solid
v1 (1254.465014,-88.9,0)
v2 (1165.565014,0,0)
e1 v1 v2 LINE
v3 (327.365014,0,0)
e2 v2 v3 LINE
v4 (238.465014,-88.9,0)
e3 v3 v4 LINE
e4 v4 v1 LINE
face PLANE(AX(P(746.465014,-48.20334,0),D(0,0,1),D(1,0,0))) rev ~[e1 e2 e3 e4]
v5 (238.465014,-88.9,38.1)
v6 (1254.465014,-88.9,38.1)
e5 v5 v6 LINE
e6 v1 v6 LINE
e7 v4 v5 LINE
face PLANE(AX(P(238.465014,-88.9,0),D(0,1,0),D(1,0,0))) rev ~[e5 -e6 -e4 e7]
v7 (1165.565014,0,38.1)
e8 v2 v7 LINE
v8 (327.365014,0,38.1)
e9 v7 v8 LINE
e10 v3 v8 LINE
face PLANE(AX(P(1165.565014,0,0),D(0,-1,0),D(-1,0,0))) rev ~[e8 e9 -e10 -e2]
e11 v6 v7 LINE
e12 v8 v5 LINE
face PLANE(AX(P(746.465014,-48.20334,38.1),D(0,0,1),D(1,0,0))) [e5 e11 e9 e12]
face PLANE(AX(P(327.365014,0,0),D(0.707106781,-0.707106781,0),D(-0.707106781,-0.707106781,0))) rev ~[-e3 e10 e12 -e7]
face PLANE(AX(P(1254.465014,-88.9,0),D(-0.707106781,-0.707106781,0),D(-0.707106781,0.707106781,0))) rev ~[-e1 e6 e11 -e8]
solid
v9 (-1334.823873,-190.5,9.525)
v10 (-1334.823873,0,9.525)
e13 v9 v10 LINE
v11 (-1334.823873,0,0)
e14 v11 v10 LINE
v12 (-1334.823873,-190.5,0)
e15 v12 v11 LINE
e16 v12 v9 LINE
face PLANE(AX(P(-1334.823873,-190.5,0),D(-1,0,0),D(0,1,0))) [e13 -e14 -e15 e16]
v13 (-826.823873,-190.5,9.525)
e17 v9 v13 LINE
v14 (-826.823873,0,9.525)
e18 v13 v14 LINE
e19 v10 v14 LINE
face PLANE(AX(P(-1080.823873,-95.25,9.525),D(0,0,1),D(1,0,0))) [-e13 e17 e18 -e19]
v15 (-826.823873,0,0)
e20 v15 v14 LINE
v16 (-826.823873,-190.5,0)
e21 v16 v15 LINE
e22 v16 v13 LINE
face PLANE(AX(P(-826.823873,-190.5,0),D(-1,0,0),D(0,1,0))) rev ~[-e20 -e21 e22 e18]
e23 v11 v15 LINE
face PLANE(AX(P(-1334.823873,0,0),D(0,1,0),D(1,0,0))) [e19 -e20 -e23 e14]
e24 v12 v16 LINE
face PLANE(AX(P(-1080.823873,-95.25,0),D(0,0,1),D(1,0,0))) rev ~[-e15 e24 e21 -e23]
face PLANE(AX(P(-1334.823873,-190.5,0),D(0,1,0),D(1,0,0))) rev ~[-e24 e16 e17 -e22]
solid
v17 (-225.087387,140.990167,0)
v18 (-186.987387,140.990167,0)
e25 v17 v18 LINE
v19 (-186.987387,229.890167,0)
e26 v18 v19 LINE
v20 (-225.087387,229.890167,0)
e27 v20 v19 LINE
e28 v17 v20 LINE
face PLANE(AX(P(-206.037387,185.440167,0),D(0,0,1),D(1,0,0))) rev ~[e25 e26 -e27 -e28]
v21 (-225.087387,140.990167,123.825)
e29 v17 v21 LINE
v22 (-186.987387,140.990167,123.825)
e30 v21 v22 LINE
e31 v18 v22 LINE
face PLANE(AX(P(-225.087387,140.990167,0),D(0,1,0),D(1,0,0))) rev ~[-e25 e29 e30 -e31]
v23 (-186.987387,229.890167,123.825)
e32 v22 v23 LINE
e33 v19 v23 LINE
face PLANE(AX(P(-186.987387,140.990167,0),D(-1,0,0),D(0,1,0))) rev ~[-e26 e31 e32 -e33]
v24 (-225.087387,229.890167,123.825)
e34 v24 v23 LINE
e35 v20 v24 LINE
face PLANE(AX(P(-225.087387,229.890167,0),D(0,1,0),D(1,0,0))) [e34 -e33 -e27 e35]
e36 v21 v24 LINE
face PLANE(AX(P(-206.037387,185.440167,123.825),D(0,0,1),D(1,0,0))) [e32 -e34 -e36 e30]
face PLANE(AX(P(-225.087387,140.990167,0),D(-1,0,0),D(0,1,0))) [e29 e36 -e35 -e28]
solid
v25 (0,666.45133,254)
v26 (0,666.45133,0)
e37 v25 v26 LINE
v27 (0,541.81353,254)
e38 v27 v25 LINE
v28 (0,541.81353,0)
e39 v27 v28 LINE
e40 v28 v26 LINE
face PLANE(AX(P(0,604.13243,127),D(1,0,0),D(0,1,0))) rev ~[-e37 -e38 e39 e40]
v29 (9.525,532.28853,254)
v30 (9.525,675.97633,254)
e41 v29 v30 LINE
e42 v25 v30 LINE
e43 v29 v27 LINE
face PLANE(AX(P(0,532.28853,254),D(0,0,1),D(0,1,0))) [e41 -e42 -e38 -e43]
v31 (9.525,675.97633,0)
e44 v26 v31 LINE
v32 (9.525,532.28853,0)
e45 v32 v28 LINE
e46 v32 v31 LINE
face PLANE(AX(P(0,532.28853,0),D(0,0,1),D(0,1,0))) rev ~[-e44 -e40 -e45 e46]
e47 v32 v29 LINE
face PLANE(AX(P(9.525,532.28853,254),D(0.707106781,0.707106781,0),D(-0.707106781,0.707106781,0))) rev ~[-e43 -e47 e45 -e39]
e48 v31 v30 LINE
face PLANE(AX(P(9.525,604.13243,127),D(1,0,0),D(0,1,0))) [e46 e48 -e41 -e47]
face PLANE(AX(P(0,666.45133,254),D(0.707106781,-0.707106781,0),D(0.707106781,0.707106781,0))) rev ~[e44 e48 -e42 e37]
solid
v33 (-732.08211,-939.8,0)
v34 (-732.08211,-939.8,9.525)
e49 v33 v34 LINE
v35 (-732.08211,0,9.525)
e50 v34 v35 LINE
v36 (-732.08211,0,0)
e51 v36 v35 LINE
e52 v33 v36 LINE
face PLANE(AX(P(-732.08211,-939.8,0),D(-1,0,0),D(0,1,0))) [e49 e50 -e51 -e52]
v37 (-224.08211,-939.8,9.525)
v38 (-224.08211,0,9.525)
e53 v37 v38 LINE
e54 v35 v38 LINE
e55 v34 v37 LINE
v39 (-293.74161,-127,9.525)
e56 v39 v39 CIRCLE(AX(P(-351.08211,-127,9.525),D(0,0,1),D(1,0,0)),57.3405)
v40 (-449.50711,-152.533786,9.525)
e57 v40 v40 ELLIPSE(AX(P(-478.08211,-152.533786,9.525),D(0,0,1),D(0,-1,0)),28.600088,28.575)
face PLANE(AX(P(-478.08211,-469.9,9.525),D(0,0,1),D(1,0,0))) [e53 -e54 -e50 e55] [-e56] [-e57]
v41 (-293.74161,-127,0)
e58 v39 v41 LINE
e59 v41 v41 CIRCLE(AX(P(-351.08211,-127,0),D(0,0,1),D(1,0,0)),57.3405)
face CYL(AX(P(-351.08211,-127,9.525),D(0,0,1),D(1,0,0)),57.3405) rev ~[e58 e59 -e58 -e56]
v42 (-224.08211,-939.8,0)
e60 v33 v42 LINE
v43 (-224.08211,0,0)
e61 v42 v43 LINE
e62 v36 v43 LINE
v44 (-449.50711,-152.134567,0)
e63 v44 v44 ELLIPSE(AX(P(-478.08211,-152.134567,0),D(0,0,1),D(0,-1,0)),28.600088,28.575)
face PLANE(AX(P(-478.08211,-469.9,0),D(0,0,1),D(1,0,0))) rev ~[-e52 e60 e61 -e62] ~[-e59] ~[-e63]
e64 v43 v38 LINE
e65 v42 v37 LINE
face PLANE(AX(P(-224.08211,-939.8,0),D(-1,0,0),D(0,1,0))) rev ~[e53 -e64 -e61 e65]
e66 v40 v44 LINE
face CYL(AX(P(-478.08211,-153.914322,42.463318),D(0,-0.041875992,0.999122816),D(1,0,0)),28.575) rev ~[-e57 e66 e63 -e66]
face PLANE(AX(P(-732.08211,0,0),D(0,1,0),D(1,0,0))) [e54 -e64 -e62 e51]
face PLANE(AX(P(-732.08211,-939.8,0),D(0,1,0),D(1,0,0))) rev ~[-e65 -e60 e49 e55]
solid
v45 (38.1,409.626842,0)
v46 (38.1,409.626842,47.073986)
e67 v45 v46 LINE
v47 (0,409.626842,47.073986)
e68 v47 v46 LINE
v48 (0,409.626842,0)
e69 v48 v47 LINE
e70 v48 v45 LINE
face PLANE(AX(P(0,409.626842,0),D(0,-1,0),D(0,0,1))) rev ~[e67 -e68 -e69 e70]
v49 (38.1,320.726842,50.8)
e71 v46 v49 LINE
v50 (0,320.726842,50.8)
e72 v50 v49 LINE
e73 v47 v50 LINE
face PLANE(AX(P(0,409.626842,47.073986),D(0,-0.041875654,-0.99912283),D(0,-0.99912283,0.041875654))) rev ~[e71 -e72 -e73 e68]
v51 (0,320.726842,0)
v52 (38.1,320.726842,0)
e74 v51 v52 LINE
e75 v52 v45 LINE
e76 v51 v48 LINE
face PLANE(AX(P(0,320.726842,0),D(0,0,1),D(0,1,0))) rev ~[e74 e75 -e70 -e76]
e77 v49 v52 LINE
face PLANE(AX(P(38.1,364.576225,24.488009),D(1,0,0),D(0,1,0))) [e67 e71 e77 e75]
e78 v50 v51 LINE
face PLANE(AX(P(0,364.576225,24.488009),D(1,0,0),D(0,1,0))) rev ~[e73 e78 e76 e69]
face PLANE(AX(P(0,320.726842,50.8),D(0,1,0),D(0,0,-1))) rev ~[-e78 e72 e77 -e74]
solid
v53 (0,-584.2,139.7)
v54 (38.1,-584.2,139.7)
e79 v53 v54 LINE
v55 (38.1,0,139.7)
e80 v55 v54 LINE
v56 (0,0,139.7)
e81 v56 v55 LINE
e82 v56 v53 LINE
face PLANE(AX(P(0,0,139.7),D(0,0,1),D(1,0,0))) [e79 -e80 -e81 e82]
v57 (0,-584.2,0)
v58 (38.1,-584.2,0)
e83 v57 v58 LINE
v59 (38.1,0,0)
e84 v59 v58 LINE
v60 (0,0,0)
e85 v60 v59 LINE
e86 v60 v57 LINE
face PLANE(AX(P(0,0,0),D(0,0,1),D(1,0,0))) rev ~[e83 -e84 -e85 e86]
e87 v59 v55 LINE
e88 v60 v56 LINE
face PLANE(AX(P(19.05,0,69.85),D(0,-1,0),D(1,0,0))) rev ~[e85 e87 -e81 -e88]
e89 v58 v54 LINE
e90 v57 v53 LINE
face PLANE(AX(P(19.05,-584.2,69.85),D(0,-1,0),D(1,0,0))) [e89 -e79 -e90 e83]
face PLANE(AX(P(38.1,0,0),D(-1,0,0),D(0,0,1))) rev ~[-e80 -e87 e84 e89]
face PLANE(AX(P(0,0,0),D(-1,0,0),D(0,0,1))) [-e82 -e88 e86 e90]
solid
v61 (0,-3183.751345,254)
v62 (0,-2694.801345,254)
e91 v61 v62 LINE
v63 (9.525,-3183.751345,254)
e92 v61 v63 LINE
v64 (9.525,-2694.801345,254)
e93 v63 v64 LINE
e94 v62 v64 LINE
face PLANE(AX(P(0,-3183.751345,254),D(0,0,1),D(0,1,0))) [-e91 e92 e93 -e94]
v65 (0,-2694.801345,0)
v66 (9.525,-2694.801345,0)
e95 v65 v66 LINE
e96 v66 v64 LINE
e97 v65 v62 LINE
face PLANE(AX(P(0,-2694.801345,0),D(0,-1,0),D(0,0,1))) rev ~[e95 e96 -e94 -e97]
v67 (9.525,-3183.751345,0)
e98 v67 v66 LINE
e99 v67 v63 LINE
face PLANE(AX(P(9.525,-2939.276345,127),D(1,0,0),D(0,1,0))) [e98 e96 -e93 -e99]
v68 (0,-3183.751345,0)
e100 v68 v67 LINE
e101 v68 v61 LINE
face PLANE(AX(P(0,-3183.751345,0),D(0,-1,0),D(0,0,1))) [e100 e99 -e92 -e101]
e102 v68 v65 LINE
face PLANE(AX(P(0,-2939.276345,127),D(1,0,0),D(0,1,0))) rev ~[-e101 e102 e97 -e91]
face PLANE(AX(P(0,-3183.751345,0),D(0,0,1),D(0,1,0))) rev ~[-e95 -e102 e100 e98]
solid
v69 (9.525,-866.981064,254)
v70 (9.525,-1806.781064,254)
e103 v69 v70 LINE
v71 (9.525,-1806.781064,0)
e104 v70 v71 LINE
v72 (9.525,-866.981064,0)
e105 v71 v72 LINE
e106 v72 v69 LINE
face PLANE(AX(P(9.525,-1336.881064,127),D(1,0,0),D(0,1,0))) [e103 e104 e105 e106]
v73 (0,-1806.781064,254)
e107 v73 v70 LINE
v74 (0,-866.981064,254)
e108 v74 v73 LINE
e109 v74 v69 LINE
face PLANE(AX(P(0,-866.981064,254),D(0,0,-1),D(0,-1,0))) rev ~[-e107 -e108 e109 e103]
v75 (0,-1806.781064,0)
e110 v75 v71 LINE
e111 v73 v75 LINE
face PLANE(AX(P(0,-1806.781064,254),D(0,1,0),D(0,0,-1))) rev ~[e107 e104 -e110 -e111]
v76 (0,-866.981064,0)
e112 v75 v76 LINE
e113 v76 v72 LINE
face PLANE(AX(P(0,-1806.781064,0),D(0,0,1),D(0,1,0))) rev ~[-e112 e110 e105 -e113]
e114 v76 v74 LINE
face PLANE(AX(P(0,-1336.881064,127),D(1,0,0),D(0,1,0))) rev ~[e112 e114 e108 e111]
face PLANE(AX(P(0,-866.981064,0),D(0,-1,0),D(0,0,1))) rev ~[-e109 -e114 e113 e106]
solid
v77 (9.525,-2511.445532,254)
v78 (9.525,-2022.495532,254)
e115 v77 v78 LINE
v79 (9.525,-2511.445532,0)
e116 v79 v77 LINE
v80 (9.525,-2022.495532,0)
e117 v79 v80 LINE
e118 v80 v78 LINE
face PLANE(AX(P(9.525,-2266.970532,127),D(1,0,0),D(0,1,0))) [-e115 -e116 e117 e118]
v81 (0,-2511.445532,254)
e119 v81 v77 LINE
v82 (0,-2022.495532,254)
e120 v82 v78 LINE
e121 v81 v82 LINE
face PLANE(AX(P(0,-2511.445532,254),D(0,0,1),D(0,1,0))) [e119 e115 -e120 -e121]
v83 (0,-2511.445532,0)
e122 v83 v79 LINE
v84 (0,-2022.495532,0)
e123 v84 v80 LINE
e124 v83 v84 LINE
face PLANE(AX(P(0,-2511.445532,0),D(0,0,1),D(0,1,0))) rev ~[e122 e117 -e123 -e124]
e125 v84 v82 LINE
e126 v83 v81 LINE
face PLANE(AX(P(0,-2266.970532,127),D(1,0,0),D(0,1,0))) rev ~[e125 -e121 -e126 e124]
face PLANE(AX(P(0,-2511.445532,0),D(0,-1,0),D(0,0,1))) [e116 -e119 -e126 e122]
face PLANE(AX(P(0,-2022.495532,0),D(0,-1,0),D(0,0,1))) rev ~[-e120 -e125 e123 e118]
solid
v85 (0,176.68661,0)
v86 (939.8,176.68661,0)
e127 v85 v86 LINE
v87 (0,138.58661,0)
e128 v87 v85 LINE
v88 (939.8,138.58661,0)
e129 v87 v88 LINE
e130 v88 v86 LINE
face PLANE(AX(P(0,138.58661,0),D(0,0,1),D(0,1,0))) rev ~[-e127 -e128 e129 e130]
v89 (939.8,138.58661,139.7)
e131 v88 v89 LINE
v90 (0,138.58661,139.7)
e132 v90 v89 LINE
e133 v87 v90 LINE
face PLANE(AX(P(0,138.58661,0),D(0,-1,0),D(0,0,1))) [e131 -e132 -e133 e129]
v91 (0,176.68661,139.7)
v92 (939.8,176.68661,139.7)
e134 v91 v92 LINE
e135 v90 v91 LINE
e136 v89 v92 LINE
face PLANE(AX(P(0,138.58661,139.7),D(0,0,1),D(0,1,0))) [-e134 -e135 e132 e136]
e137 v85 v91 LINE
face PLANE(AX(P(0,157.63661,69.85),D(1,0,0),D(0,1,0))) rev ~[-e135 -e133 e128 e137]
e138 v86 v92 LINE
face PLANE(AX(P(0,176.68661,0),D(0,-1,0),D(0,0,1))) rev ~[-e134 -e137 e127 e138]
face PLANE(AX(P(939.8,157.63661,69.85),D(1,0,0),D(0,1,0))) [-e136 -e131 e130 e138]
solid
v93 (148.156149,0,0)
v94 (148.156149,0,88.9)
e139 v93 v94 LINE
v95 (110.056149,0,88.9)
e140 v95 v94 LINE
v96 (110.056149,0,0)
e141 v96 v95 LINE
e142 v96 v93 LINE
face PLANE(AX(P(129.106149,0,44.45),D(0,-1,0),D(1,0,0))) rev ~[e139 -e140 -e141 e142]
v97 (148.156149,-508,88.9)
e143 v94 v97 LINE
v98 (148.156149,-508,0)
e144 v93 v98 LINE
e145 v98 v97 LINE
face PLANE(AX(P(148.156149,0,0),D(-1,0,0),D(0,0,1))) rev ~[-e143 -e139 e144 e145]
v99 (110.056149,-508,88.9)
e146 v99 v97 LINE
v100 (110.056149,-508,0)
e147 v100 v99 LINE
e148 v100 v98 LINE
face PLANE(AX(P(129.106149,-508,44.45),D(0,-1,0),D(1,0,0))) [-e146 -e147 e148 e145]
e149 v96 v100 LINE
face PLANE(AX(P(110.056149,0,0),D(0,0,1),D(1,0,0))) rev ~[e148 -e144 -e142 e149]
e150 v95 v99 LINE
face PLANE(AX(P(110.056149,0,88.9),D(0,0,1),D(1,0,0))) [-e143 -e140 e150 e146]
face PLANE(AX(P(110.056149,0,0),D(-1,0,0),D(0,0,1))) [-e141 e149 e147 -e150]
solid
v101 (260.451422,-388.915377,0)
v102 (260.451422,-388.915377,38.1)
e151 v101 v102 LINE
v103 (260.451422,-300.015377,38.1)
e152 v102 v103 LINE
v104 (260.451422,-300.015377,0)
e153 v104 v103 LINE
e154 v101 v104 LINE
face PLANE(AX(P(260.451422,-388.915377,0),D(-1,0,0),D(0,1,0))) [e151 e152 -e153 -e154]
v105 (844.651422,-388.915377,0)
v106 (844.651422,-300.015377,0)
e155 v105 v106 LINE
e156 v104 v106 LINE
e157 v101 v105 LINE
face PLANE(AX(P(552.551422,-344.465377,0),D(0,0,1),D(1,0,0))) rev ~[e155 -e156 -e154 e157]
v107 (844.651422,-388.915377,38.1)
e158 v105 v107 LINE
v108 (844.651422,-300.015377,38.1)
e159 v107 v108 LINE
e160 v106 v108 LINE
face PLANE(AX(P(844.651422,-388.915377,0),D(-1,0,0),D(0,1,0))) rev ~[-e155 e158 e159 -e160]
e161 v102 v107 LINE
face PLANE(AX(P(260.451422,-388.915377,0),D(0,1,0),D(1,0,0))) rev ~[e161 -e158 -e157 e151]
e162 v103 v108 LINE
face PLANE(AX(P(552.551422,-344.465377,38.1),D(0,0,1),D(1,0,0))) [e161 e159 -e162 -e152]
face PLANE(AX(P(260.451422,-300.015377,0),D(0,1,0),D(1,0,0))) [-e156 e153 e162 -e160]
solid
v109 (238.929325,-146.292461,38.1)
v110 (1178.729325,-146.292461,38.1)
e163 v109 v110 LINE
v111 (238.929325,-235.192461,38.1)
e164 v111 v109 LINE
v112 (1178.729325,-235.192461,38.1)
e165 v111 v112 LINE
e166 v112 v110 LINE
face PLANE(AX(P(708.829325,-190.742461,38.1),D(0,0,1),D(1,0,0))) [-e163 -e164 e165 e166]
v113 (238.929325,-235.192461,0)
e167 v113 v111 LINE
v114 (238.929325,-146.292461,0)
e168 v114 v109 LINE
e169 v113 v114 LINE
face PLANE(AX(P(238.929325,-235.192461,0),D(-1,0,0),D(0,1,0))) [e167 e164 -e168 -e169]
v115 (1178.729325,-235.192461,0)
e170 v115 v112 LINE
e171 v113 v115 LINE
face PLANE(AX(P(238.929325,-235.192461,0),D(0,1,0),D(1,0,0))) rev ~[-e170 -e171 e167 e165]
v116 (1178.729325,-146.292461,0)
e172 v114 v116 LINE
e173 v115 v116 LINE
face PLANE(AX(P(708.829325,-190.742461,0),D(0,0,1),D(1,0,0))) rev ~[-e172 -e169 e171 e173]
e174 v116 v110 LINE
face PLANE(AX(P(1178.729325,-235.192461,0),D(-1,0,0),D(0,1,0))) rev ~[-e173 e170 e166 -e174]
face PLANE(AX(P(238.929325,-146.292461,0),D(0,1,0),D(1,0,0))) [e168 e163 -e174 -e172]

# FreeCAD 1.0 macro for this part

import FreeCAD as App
import Part
import Sketcher

V = App.Vector
Q = App.Units.Quantity

doc = App.newDocument("Part")
body = doc.addObject("PartDesign::Body", "Body")

# Sketch on XZ plane
sketch1 = body.newObject("Sketcher::SketchObject", "Sketch")
sketch1.AttachmentSupport = (doc.getObject("XZ_Plane"), [""])
sketch1.MapMode = "FlatFace"
sketch1.addGeometry(Part.LineSegment(V(0, 140, 0), V(0, 0, 0)), False)
sketch1.addGeometry(Part.LineSegment(V(0, 0, 0), V(38, 0, 0)), False)
sketch1.addGeometry(Part.LineSegment(V(38, 0, 0), V(38, 140, 0)), False)
sketch1.addGeometry(Part.LineSegment(V(38, 140, 0), V(0, 140, 0)), False)
sketch1.addConstraint(Sketcher.Constraint("Coincident", 0, 2, 1, 1))
sketch1.addConstraint(Sketcher.Constraint("Coincident", 1, 2, 2, 1))
sketch1.addConstraint(Sketcher.Constraint("Coincident", 2, 2, 3, 1))
sketch1.addConstraint(Sketcher.Constraint("Coincident", 3, 2, 0, 1))
sketch1.addConstraint(Sketcher.Constraint("Vertical", 0))
sketch1.addConstraint(Sketcher.Constraint("Horizontal", 1))
sketch1.addConstraint(Sketcher.Constraint("Vertical", 2))
sketch1.addConstraint(Sketcher.Constraint("Horizontal", 3))
sketch1.addConstraint(Sketcher.Constraint("Coincident", 0, 2, -1, 1))
sketch1.addConstraint(Sketcher.Constraint("DistanceX", 1, 1, 1, 2, Q("1.5 in")))
sketch1.addConstraint(Sketcher.Constraint("DistanceY", 0, 2, 0, 1, Q("5.5 in")))
pad1 = body.newObject("PartDesign::Pad", "Pad")
pad1.Profile = sketch1
pad1.Length = Q("23 in")
body2 = doc.addObject("PartDesign::Body", "Body001")

# Sketch on YZ plane
sketch2 = body2.newObject("Sketcher::SketchObject", "Sketch001")
sketch2.AttachmentSupport = (doc.getObject("YZ_Plane001"), [""])
sketch2.MapMode = "FlatFace"
sketch2.addGeometry(Part.LineSegment(V(139, 140, 0), V(139, 0, 0)), False)
sketch2.addGeometry(Part.LineSegment(V(139, 0, 0), V(177, 0, 0)), False)
sketch2.addGeometry(Part.LineSegment(V(177, 0, 0), V(177, 140, 0)), False)
sketch2.addGeometry(Part.LineSegment(V(177, 140, 0), V(139, 140, 0)), False)
sketch2.addConstraint(Sketcher.Constraint("Coincident", 0, 2, 1, 1))
sketch2.addConstraint(Sketcher.Constraint("Coincident", 1, 2, 2, 1))
sketch2.addConstraint(Sketcher.Constraint("Coincident", 2, 2, 3, 1))
sketch2.addConstraint(Sketcher.Constraint("Coincident", 3, 2, 0, 1))
sketch2.addConstraint(Sketcher.Constraint("Vertical", 0))
sketch2.addConstraint(Sketcher.Constraint("Horizontal", 1))
sketch2.addConstraint(Sketcher.Constraint("Vertical", 2))
sketch2.addConstraint(Sketcher.Constraint("Horizontal", 3))
sketch2.addConstraint(Sketcher.Constraint("PointOnObject", 0, 2, -1))
sketch2.addConstraint(Sketcher.Constraint("DistanceX", 1, 1, 1, 2, Q("1.5 in")))
sketch2.addConstraint(Sketcher.Constraint("DistanceY", 0, 2, 0, 1, Q("5.5 in")))
sketch2.addConstraint(Sketcher.Constraint("DistanceX", -1, 1, 0, 2, Q("138.58661 mm")))
pad2 = body2.newObject("PartDesign::Pad", "Pad001")
pad2.Profile = sketch2
pad2.Length = Q("37 in")
body3 = doc.addObject("PartDesign::Body", "Body002")

# Sketch on XZ plane
sketch3 = body3.newObject("Sketcher::SketchObject", "Sketch002")
sketch3.AttachmentSupport = (doc.getObject("XZ_Plane002"), [""])
sketch3.MapMode = "FlatFace"
sketch3.addGeometry(Part.LineSegment(V(110, 89, 0), V(110, 0, 0)), False)
sketch3.addGeometry(Part.LineSegment(V(110, 0, 0), V(148, 0, 0)), False)
sketch3.addGeometry(Part.LineSegment(V(148, 0, 0), V(148, 89, 0)), False)
sketch3.addGeometry(Part.LineSegment(V(148, 89, 0), V(110, 89, 0)), False)
sketch3.addConstraint(Sketcher.Constraint("Coincident", 0, 2, 1, 1))
sketch3.addConstraint(Sketcher.Constraint("Coincident", 1, 2, 2, 1))
sketch3.addConstraint(Sketcher.Constraint("Coincident", 2, 2, 3, 1))
sketch3.addConstraint(Sketcher.Constraint("Coincident", 3, 2, 0, 1))
sketch3.addConstraint(Sketcher.Constraint("Vertical", 0))
sketch3.addConstraint(Sketcher.Constraint("Horizontal", 1))
sketch3.addConstraint(Sketcher.Constraint("Vertical", 2))
sketch3.addConstraint(Sketcher.Constraint("Horizontal", 3))
sketch3.addConstraint(Sketcher.Constraint("PointOnObject", 0, 2, -1))
sketch3.addConstraint(Sketcher.Constraint("DistanceX", 1, 1, 1, 2, Q("1.5 in")))
sketch3.addConstraint(Sketcher.Constraint("DistanceY", 0, 2, 0, 1, Q("3.5 in")))
sketch3.addConstraint(Sketcher.Constraint("DistanceX", -1, 1, 0, 2, Q("110.056149 mm")))
pad3 = body3.newObject("PartDesign::Pad", "Pad002")
pad3.Profile = sketch3
pad3.Length = Q("20 in")
body4 = doc.addObject("PartDesign::Body", "Body003")

# Sketch on XY plane
sketch4 = body4.newObject("Sketcher::SketchObject", "Sketch003")
sketch4.AttachmentSupport = (doc.getObject("XY_Plane003"), [""])
sketch4.MapMode = "FlatFace"
sketch4.addGeometry(Part.LineSegment(V(-732, 0, 0), V(-732, -940, 0)), False)
sketch4.addGeometry(Part.LineSegment(V(-732, -940, 0), V(-224, -940, 0)), False)
sketch4.addGeometry(Part.LineSegment(V(-224, -940, 0), V(-224, 0, 0)), False)
sketch4.addGeometry(Part.LineSegment(V(-224, 0, 0), V(-732, 0, 0)), False)
sketch4.addConstraint(Sketcher.Constraint("Coincident", 0, 2, 1, 1))
sketch4.addConstraint(Sketcher.Constraint("Coincident", 1, 2, 2, 1))
sketch4.addConstraint(Sketcher.Constraint("Coincident", 2, 2, 3, 1))
sketch4.addConstraint(Sketcher.Constraint("Coincident", 3, 2, 0, 1))
sketch4.addConstraint(Sketcher.Constraint("Vertical", 0))
sketch4.addConstraint(Sketcher.Constraint("Horizontal", 1))
sketch4.addConstraint(Sketcher.Constraint("Vertical", 2))
sketch4.addConstraint(Sketcher.Constraint("Horizontal", 3))
sketch4.addConstraint(Sketcher.Constraint("PointOnObject", 2, 2, -1))
sketch4.addConstraint(Sketcher.Constraint("DistanceX", 1, 1, 1, 2, Q("20 in")))
sketch4.addConstraint(Sketcher.Constraint("DistanceY", 0, 2, 0, 1, Q("37 in")))
sketch4.addConstraint(Sketcher.Constraint("DistanceX", 0, 2, -1, 1, Q("732.08211 mm")))
pad4 = body4.newObject("PartDesign::Pad", "Pad003")
pad4.Profile = sketch4
pad4.Length = Q("0.375 in")

# Sketch on an angled plane
sketch5 = body4.newObject("Sketcher::SketchObject", "Sketch004")
sketch5.Placement = App.Placement(V(0, -2.046521, 48.828516), App.Rotation(V(1, 0, 0), V(0, 0.999122816, 0.041875992), V(0, -0.041875992, 0.999122816), "ZXY"))
sketch5.addGeometry(Part.Circle(V(-478, -152, 0), V(0, 0, 1), 29), False)
sketch5.addConstraint(Sketcher.Constraint("Diameter", 0, Q("2.25 in")))
sketch5.addConstraint(Sketcher.Constraint("DistanceX", 0, 3, -1, 1, Q("478.08211 mm")))
sketch5.addConstraint(Sketcher.Constraint("DistanceY", 0, 3, -1, 1, Q("152.001134 mm")))
pocket1 = body4.newObject("PartDesign::Pocket", "Pocket")
pocket1.Profile = sketch5
pocket1.Length = Q("3 in")

# Sketch on XY plane
sketch6 = body4.newObject("Sketcher::SketchObject", "Sketch005")
sketch6.AttachmentSupport = (doc.getObject("XY_Plane003"), [""])
sketch6.MapMode = "FlatFace"
sketch6.AttachmentOffset = App.Placement(V(0, 0, 0.375 * 25.4), App.Rotation())
sketch6.addGeometry(Part.Circle(V(-351, -127, 0), V(0, 0, 1), 57), False)
sketch6.addConstraint(Sketcher.Constraint("Diameter", 0, Q("4.515 in")))
sketch6.addConstraint(Sketcher.Constraint("DistanceY", 0, 3, -1, 1, Q("5 in")))
sketch6.addConstraint(Sketcher.Constraint("DistanceX", 0, 3, -1, 1, Q("351.08211 mm")))
pocket2 = body4.newObject("PartDesign::Pocket", "Pocket001")
pocket2.Profile = sketch6
pocket2.Length = Q("1 in")
body5 = doc.addObject("PartDesign::Body", "Body004")

# Sketch on XY plane
sketch7 = body5.newObject("Sketcher::SketchObject", "Sketch006")
sketch7.AttachmentSupport = (doc.getObject("XY_Plane004"), [""])
sketch7.MapMode = "FlatFace"
sketch7.addGeometry(Part.LineSegment(V(-1335, 0, 0), V(-1335, -190, 0)), False)
sketch7.addGeometry(Part.LineSegment(V(-1335, -190, 0), V(-827, -190, 0)), False)
sketch7.addGeometry(Part.LineSegment(V(-827, -190, 0), V(-827, 0, 0)), False)
sketch7.addGeometry(Part.LineSegment(V(-827, 0, 0), V(-1335, 0, 0)), False)
sketch7.addConstraint(Sketcher.Constraint("Coincident", 0, 2, 1, 1))
sketch7.addConstraint(Sketcher.Constraint("Coincident", 1, 2, 2, 1))
sketch7.addConstraint(Sketcher.Constraint("Coincident", 2, 2, 3, 1))
sketch7.addConstraint(Sketcher.Constraint("Coincident", 3, 2, 0, 1))
sketch7.addConstraint(Sketcher.Constraint("Vertical", 0))
sketch7.addConstraint(Sketcher.Constraint("Horizontal", 1))
sketch7.addConstraint(Sketcher.Constraint("Vertical", 2))
sketch7.addConstraint(Sketcher.Constraint("Horizontal", 3))
sketch7.addConstraint(Sketcher.Constraint("PointOnObject", 2, 2, -1))
sketch7.addConstraint(Sketcher.Constraint("DistanceX", 1, 1, 1, 2, Q("20 in")))
sketch7.addConstraint(Sketcher.Constraint("DistanceY", 0, 2, 0, 1, Q("7.5 in")))
sketch7.addConstraint(Sketcher.Constraint("DistanceX", 0, 2, -1, 1, Q("1334.823873 mm")))
pad5 = body5.newObject("PartDesign::Pad", "Pad004")
pad5.Profile = sketch7
pad5.Length = Q("0.375 in")
body6 = doc.addObject("PartDesign::Body", "Body005")

# Sketch on YZ plane
sketch8 = body6.newObject("Sketcher::SketchObject", "Sketch007")
sketch8.AttachmentSupport = (doc.getObject("YZ_Plane005"), [""])
sketch8.MapMode = "FlatFace"
sketch8.addGeometry(Part.LineSegment(V(-867, 0, 0), V(-867, 254, 0)), False)
sketch8.addGeometry(Part.LineSegment(V(-867, 254, 0), V(-1807, 254, 0)), False)
sketch8.addGeometry(Part.LineSegment(V(-1807, 254, 0), V(-1807, 0, 0)), False)
sketch8.addGeometry(Part.LineSegment(V(-1807, 0, 0), V(-867, 0, 0)), False)
sketch8.addConstraint(Sketcher.Constraint("Coincident", 0, 2, 1, 1))
sketch8.addConstraint(Sketcher.Constraint("Coincident", 1, 2, 2, 1))
sketch8.addConstraint(Sketcher.Constraint("Coincident", 2, 2, 3, 1))
sketch8.addConstraint(Sketcher.Constraint("Coincident", 3, 2, 0, 1))
sketch8.addConstraint(Sketcher.Constraint("Vertical", 0))
sketch8.addConstraint(Sketcher.Constraint("Horizontal", 1))
sketch8.addConstraint(Sketcher.Constraint("Vertical", 2))
sketch8.addConstraint(Sketcher.Constraint("Horizontal", 3))
sketch8.addConstraint(Sketcher.Constraint("PointOnObject", 2, 2, -1))
sketch8.addConstraint(Sketcher.Constraint("DistanceX", 1, 2, 1, 1, Q("37 in")))
sketch8.addConstraint(Sketcher.Constraint("DistanceY", 0, 1, 0, 2, Q("10 in")))
sketch8.addConstraint(Sketcher.Constraint("DistanceX", 0, 2, -1, 1, Q("866.981064 mm")))
pad6 = body6.newObject("PartDesign::Pad", "Pad005")
pad6.Profile = sketch8
pad6.Length = Q("0.375 in")
body7 = doc.addObject("PartDesign::Body", "Body006")

# Sketch on YZ plane
sketch9 = body7.newObject("Sketcher::SketchObject", "Sketch008")
sketch9.AttachmentSupport = (doc.getObject("YZ_Plane006"), [""])
sketch9.MapMode = "FlatFace"
sketch9.addGeometry(Part.LineSegment(V(-2511, 254, 0), V(-2511, 0, 0)), False)
sketch9.addGeometry(Part.LineSegment(V(-2511, 0, 0), V(-2022, 0, 0)), False)
sketch9.addGeometry(Part.LineSegment(V(-2022, 0, 0), V(-2022, 254, 0)), False)
sketch9.addGeometry(Part.LineSegment(V(-2022, 254, 0), V(-2511, 254, 0)), False)
sketch9.addConstraint(Sketcher.Constraint("Coincident", 0, 2, 1, 1))
sketch9.addConstraint(Sketcher.Constraint("Coincident", 1, 2, 2, 1))
sketch9.addConstraint(Sketcher.Constraint("Coincident", 2, 2, 3, 1))
sketch9.addConstraint(Sketcher.Constraint("Coincident", 3, 2, 0, 1))
sketch9.addConstraint(Sketcher.Constraint("Vertical", 0))
sketch9.addConstraint(Sketcher.Constraint("Horizontal", 1))
sketch9.addConstraint(Sketcher.Constraint("Vertical", 2))
sketch9.addConstraint(Sketcher.Constraint("Horizontal", 3))
sketch9.addConstraint(Sketcher.Constraint("PointOnObject", 0, 2, -1))
sketch9.addConstraint(Sketcher.Constraint("DistanceY", 0, 2, 0, 1, Q("10 in")))
sketch9.addConstraint(Sketcher.Constraint("DistanceX", 1, 1, 1, 2, Q("19.25 in")))
sketch9.addConstraint(Sketcher.Constraint("DistanceX", 1, 2, -1, 1, Q("2022.495532 mm")))
pad7 = body7.newObject("PartDesign::Pad", "Pad006")
pad7.Profile = sketch9
pad7.Length = Q("0.375 in")
body8 = doc.addObject("PartDesign::Body", "Body007")

# Sketch on YZ plane
sketch10 = body8.newObject("Sketcher::SketchObject", "Sketch009")
sketch10.AttachmentSupport = (doc.getObject("YZ_Plane007"), [""])
sketch10.MapMode = "FlatFace"
sketch10.addGeometry(Part.LineSegment(V(-3184, 254, 0), V(-3184, 0, 0)), False)
sketch10.addGeometry(Part.LineSegment(V(-3184, 0, 0), V(-2695, 0, 0)), False)
sketch10.addGeometry(Part.LineSegment(V(-2695, 0, 0), V(-2695, 254, 0)), False)
sketch10.addGeometry(Part.LineSegment(V(-2695, 254, 0), V(-3184, 254, 0)), False)
sketch10.addConstraint(Sketcher.Constraint("Coincident", 0, 2, 1, 1))
sketch10.addConstraint(Sketcher.Constraint("Coincident", 1, 2, 2, 1))
sketch10.addConstraint(Sketcher.Constraint("Coincident", 2, 2, 3, 1))
sketch10.addConstraint(Sketcher.Constraint("Coincident", 3, 2, 0, 1))
sketch10.addConstraint(Sketcher.Constraint("Vertical", 0))
sketch10.addConstraint(Sketcher.Constraint("Horizontal", 1))
sketch10.addConstraint(Sketcher.Constraint("Vertical", 2))
sketch10.addConstraint(Sketcher.Constraint("Horizontal", 3))
sketch10.addConstraint(Sketcher.Constraint("PointOnObject", 0, 2, -1))
sketch10.addConstraint(Sketcher.Constraint("DistanceY", 0, 2, 0, 1, Q("10 in")))
sketch10.addConstraint(Sketcher.Constraint("DistanceX", 1, 1, 1, 2, Q("19.25 in")))
sketch10.addConstraint(Sketcher.Constraint("DistanceX", 0, 2, -1, 1, Q("3183.751345 mm")))
pad8 = body8.newObject("PartDesign::Pad", "Pad007")
pad8.Profile = sketch10
pad8.Length = Q("0.375 in")
body9 = doc.addObject("PartDesign::Body", "Body008")

# Sketch on XY plane
sketch11 = body9.newObject("Sketcher::SketchObject", "Sketch010")
sketch11.AttachmentSupport = (doc.getObject("XY_Plane008"), [""])
sketch11.MapMode = "FlatFace"
sketch11.addGeometry(Part.LineSegment(V(1166, 0, 0), V(327, 0, 0)), False)
sketch11.addGeometry(Part.LineSegment(V(327, 0, 0), V(238, -89, 0)), False)
sketch11.addGeometry(Part.LineSegment(V(238, -89, 0), V(1254, -89, 0)), False)
sketch11.addGeometry(Part.LineSegment(V(1254, -89, 0), V(1166, 0, 0)), False)
sketch11.addConstraint(Sketcher.Constraint("Coincident", 0, 2, 1, 1))
sketch11.addConstraint(Sketcher.Constraint("Coincident", 1, 2, 2, 1))
sketch11.addConstraint(Sketcher.Constraint("Coincident", 2, 2, 3, 1))
sketch11.addConstraint(Sketcher.Constraint("Coincident", 3, 2, 0, 1))
sketch11.addConstraint(Sketcher.Constraint("Horizontal", 0))
sketch11.addConstraint(Sketcher.Constraint("Horizontal", 2))
sketch11.addConstraint(Sketcher.Constraint("PointOnObject", 0, 2, -1))
sketch11.addConstraint(Sketcher.Constraint("Perpendicular", 1, 3))
sketch11.addConstraint(Sketcher.Constraint("Equal", 1, 3))
sketch11.addConstraint(Sketcher.Constraint("DistanceX", 0, 2, 0, 1, Q("33 in")))
sketch11.addConstraint(Sketcher.Constraint("DistanceX", 2, 1, 2, 2, Q("40 in")))
sketch11.addConstraint(Sketcher.Constraint("DistanceX", -1, 1, 0, 2, Q("327.365014 mm")))
pad9 = body9.newObject("PartDesign::Pad", "Pad008")
pad9.Profile = sketch11
pad9.Length = Q("1.5 in")
body10 = doc.addObject("PartDesign::Body", "Body009")

# Sketch on XY plane
sketch12 = body10.newObject("Sketcher::SketchObject", "Sketch011")
sketch12.AttachmentSupport = (doc.getObject("XY_Plane009"), [""])
sketch12.MapMode = "FlatFace"
sketch12.addGeometry(Part.LineSegment(V(239, -146, 0), V(239, -235, 0)), False)
sketch12.addGeometry(Part.LineSegment(V(239, -235, 0), V(1179, -235, 0)), False)
sketch12.addGeometry(Part.LineSegment(V(1179, -235, 0), V(1179, -146, 0)), False)
sketch12.addGeometry(Part.LineSegment(V(1179, -146, 0), V(239, -146, 0)), False)
sketch12.addConstraint(Sketcher.Constraint("Coincident", 0, 2, 1, 1))
sketch12.addConstraint(Sketcher.Constraint("Coincident", 1, 2, 2, 1))
sketch12.addConstraint(Sketcher.Constraint("Coincident", 2, 2, 3, 1))
sketch12.addConstraint(Sketcher.Constraint("Coincident", 3, 2, 0, 1))
sketch12.addConstraint(Sketcher.Constraint("Vertical", 0))
sketch12.addConstraint(Sketcher.Constraint("Horizontal", 1))
sketch12.addConstraint(Sketcher.Constraint("Vertical", 2))
sketch12.addConstraint(Sketcher.Constraint("Horizontal", 3))
sketch12.addConstraint(Sketcher.Constraint("DistanceX", 1, 1, 1, 2, Q("37 in")))
sketch12.addConstraint(Sketcher.Constraint("DistanceY", 0, 2, 0, 1, Q("3.5 in")))
sketch12.addConstraint(Sketcher.Constraint("DistanceY", 0, 2, -1, 1, Q("235.192461 mm")))
sketch12.addConstraint(Sketcher.Constraint("DistanceX", -1, 1, 0, 2, Q("238.929325 mm")))
pad10 = body10.newObject("PartDesign::Pad", "Pad009")
pad10.Profile = sketch12
pad10.Length = Q("1.5 in")
body11 = doc.addObject("PartDesign::Body", "Body010")

# Sketch on XY plane
sketch13 = body11.newObject("Sketcher::SketchObject", "Sketch012")
sketch13.AttachmentSupport = (doc.getObject("XY_Plane010"), [""])
sketch13.MapMode = "FlatFace"
sketch13.addGeometry(Part.LineSegment(V(260, -300, 0), V(260, -389, 0)), False)
sketch13.addGeometry(Part.LineSegment(V(260, -389, 0), V(845, -389, 0)), False)
sketch13.addGeometry(Part.LineSegment(V(845, -389, 0), V(845, -300, 0)), False)
sketch13.addGeometry(Part.LineSegment(V(845, -300, 0), V(260, -300, 0)), False)
sketch13.addConstraint(Sketcher.Constraint("Coincident", 0, 2, 1, 1))
sketch13.addConstraint(Sketcher.Constraint("Coincident", 1, 2, 2, 1))
sketch13.addConstraint(Sketcher.Constraint("Coincident", 2, 2, 3, 1))
sketch13.addConstraint(Sketcher.Constraint("Coincident", 3, 2, 0, 1))
sketch13.addConstraint(Sketcher.Constraint("Vertical", 0))
sketch13.addConstraint(Sketcher.Constraint("Horizontal", 1))
sketch13.addConstraint(Sketcher.Constraint("Vertical", 2))
sketch13.addConstraint(Sketcher.Constraint("Horizontal", 3))
sketch13.addConstraint(Sketcher.Constraint("DistanceX", 1, 1, 1, 2, Q("23 in")))
sketch13.addConstraint(Sketcher.Constraint("DistanceY", 0, 2, 0, 1, Q("3.5 in")))
sketch13.addConstraint(Sketcher.Constraint("DistanceX", -1, 1, 0, 2, Q("260.451422 mm")))
sketch13.addConstraint(Sketcher.Constraint("DistanceY", 0, 2, -1, 1, Q("388.915377 mm")))
pad11 = body11.newObject("PartDesign::Pad", "Pad010")
pad11.Profile = sketch13
pad11.Length = Q("1.5 in")
body12 = doc.addObject("PartDesign::Body", "Body011")

# Sketch on XY plane
sketch14 = body12.newObject("Sketcher::SketchObject", "Sketch013")
sketch14.AttachmentSupport = (doc.getObject("XY_Plane011"), [""])
sketch14.MapMode = "FlatFace"
sketch14.addGeometry(Part.LineSegment(V(-225, 230, 0), V(-225, 141, 0)), False)
sketch14.addGeometry(Part.LineSegment(V(-225, 141, 0), V(-187, 141, 0)), False)
sketch14.addGeometry(Part.LineSegment(V(-187, 141, 0), V(-187, 230, 0)), False)
sketch14.addGeometry(Part.LineSegment(V(-187, 230, 0), V(-225, 230, 0)), False)
sketch14.addConstraint(Sketcher.Constraint("Coincident", 0, 2, 1, 1))
sketch14.addConstraint(Sketcher.Constraint("Coincident", 1, 2, 2, 1))
sketch14.addConstraint(Sketcher.Constraint("Coincident", 2, 2, 3, 1))
sketch14.addConstraint(Sketcher.Constraint("Coincident", 3, 2, 0, 1))
sketch14.addConstraint(Sketcher.Constraint("Vertical", 0))
sketch14.addConstraint(Sketcher.Constraint("Horizontal", 1))
sketch14.addConstraint(Sketcher.Constraint("Vertical", 2))
sketch14.addConstraint(Sketcher.Constraint("Horizontal", 3))
sketch14.addConstraint(Sketcher.Constraint("DistanceX", 1, 1, 1, 2, Q("1.5 in")))
sketch14.addConstraint(Sketcher.Constraint("DistanceY", 0, 2, 0, 1, Q("3.5 in")))
sketch14.addConstraint(Sketcher.Constraint("DistanceX", 0, 2, -1, 1, Q("225.087387 mm")))
sketch14.addConstraint(Sketcher.Constraint("DistanceY", -1, 1, 0, 2, Q("140.990167 mm")))
pad12 = body12.newObject("PartDesign::Pad", "Pad011")
pad12.Profile = sketch14
pad12.Length = Q("4.875 in")
body13 = doc.addObject("PartDesign::Body", "Body012")

# Sketch on YZ plane
sketch15 = body13.newObject("Sketcher::SketchObject", "Sketch014")
sketch15.AttachmentSupport = (doc.getObject("YZ_Plane012"), [""])
sketch15.MapMode = "FlatFace"
sketch15.addGeometry(Part.LineSegment(V(321, 51, 0), V(321, 0, 0)), False)
sketch15.addGeometry(Part.LineSegment(V(321, 0, 0), V(410, 0, 0)), False)
sketch15.addGeometry(Part.LineSegment(V(410, 0, 0), V(410, 47, 0)), False)
sketch15.addGeometry(Part.LineSegment(V(410, 47, 0), V(321, 51, 0)), False)
sketch15.addConstraint(Sketcher.Constraint("Coincident", 0, 2, 1, 1))
sketch15.addConstraint(Sketcher.Constraint("Coincident", 1, 2, 2, 1))
sketch15.addConstraint(Sketcher.Constraint("Coincident", 2, 2, 3, 1))
sketch15.addConstraint(Sketcher.Constraint("Coincident", 3, 2, 0, 1))
sketch15.addConstraint(Sketcher.Constraint("Vertical", 0))
sketch15.addConstraint(Sketcher.Constraint("Horizontal", 1))
sketch15.addConstraint(Sketcher.Constraint("Vertical", 2))
sketch15.addConstraint(Sketcher.Constraint("PointOnObject", 0, 2, -1))
sketch15.addConstraint(Sketcher.Constraint("DistanceY", 0, 2, 0, 1, Q("2 in")))
sketch15.addConstraint(Sketcher.Constraint("DistanceX", 1, 1, 1, 2, Q("3.5 in")))
sketch15.addConstraint(Sketcher.Constraint("Angle", 3, Q("177.6 deg")))
sketch15.addConstraint(Sketcher.Constraint("DistanceX", -1, 1, 0, 2, Q("320.726842 mm")))
pad13 = body13.newObject("PartDesign::Pad", "Pad012")
pad13.Profile = sketch15
pad13.Length = Q("1.5 in")
body14 = doc.addObject("PartDesign::Body", "Body013")

# Sketch on YZ plane
sketch16 = body14.newObject("Sketcher::SketchObject", "Sketch015")
sketch16.AttachmentSupport = (doc.getObject("YZ_Plane013"), [""])
sketch16.MapMode = "FlatFace"
sketch16.addGeometry(Part.LineSegment(V(532, 254, 0), V(532, 0, 0)), False)
sketch16.addGeometry(Part.LineSegment(V(532, 0, 0), V(676, 0, 0)), False)
sketch16.addGeometry(Part.LineSegment(V(676, 0, 0), V(676, 254, 0)), False)
sketch16.addGeometry(Part.LineSegment(V(676, 254, 0), V(532, 254, 0)), False)
sketch16.addConstraint(Sketcher.Constraint("Coincident", 0, 2, 1, 1))
sketch16.addConstraint(Sketcher.Constraint("Coincident", 1, 2, 2, 1))
sketch16.addConstraint(Sketcher.Constraint("Coincident", 2, 2, 3, 1))
sketch16.addConstraint(Sketcher.Constraint("Coincident", 3, 2, 0, 1))
sketch16.addConstraint(Sketcher.Constraint("Vertical", 0))
sketch16.addConstraint(Sketcher.Constraint("Horizontal", 1))
sketch16.addConstraint(Sketcher.Constraint("Vertical", 2))
sketch16.addConstraint(Sketcher.Constraint("Horizontal", 3))
sketch16.addConstraint(Sketcher.Constraint("PointOnObject", 0, 2, -1))
sketch16.addConstraint(Sketcher.Constraint("DistanceY", 0, 2, 0, 1, Q("10 in")))
sketch16.addConstraint(Sketcher.Constraint("DistanceX", 1, 1, 1, 2, Q("5.657 in")))
sketch16.addConstraint(Sketcher.Constraint("DistanceX", -1, 1, 0, 2, Q("532.28853 mm")))
pad14 = body14.newObject("PartDesign::Pad", "Pad013")
pad14.Profile = sketch16
pad14.Length = Q("0.375 in")

# Sketch on XY plane
sketch17 = body14.newObject("Sketcher::SketchObject", "Sketch016")
sketch17.AttachmentSupport = (doc.getObject("XY_Plane013"), [""])
sketch17.MapMode = "FlatFace"
sketch17.AttachmentOffset = App.Placement(V(0, 0, 10 * 25.4), App.Rotation())
sketch17.addGeometry(Part.LineSegment(V(0, 666, 0), V(10, 676, 0)), False)
sketch17.addGeometry(Part.LineSegment(V(10, 676, 0), V(0, 676, 0)), False)
sketch17.addGeometry(Part.LineSegment(V(0, 676, 0), V(0, 666, 0)), False)
sketch17.addGeometry(Part.LineSegment(V(0, 532, 0), V(10, 532, 0)), False)
sketch17.addGeometry(Part.LineSegment(V(10, 532, 0), V(0, 542, 0)), False)
sketch17.addGeometry(Part.LineSegment(V(0, 542, 0), V(0, 532, 0)), False)
sketch17.addConstraint(Sketcher.Constraint("Coincident", 0, 2, 1, 1))
sketch17.addConstraint(Sketcher.Constraint("Coincident", 1, 2, 2, 1))
sketch17.addConstraint(Sketcher.Constraint("Coincident", 2, 2, 0, 1))
sketch17.addConstraint(Sketcher.Constraint("Coincident", 3, 2, 4, 1))
sketch17.addConstraint(Sketcher.Constraint("Coincident", 4, 2, 5, 1))
sketch17.addConstraint(Sketcher.Constraint("Coincident", 5, 2, 3, 1))
sketch17.addConstraint(Sketcher.Constraint("Horizontal", 1))
sketch17.addConstraint(Sketcher.Constraint("Vertical", 2))
sketch17.addConstraint(Sketcher.Constraint("Horizontal", 3))
sketch17.addConstraint(Sketcher.Constraint("Vertical", 5))
sketch17.addConstraint(Sketcher.Constraint("PointOnObject", 1, 2, -2))
sketch17.addConstraint(Sketcher.Constraint("PointOnObject", 4, 2, -2))
sketch17.addConstraint(Sketcher.Constraint("Perpendicular", 0, 4))
sketch17.addConstraint(Sketcher.Constraint("Vertical", 0, 2, 3, 2))
sketch17.addConstraint(Sketcher.Constraint("Equal", 3, 2))
sketch17.addConstraint(Sketcher.Constraint("DistanceX", 1, 2, 1, 1, Q("0.375 in")))
sketch17.addConstraint(Sketcher.Constraint("DistanceY", 3, 2, 2, 2, Q("5.282 in")))
sketch17.addConstraint(Sketcher.Constraint("DistanceY", -1, 1, 0, 2, Q("675.97633 mm")))
pocket3 = body14.newObject("PartDesign::Pocket", "Pocket002")
pocket3.Profile = sketch17
pocket3.Length = Q("10 in")

doc.recompute()
